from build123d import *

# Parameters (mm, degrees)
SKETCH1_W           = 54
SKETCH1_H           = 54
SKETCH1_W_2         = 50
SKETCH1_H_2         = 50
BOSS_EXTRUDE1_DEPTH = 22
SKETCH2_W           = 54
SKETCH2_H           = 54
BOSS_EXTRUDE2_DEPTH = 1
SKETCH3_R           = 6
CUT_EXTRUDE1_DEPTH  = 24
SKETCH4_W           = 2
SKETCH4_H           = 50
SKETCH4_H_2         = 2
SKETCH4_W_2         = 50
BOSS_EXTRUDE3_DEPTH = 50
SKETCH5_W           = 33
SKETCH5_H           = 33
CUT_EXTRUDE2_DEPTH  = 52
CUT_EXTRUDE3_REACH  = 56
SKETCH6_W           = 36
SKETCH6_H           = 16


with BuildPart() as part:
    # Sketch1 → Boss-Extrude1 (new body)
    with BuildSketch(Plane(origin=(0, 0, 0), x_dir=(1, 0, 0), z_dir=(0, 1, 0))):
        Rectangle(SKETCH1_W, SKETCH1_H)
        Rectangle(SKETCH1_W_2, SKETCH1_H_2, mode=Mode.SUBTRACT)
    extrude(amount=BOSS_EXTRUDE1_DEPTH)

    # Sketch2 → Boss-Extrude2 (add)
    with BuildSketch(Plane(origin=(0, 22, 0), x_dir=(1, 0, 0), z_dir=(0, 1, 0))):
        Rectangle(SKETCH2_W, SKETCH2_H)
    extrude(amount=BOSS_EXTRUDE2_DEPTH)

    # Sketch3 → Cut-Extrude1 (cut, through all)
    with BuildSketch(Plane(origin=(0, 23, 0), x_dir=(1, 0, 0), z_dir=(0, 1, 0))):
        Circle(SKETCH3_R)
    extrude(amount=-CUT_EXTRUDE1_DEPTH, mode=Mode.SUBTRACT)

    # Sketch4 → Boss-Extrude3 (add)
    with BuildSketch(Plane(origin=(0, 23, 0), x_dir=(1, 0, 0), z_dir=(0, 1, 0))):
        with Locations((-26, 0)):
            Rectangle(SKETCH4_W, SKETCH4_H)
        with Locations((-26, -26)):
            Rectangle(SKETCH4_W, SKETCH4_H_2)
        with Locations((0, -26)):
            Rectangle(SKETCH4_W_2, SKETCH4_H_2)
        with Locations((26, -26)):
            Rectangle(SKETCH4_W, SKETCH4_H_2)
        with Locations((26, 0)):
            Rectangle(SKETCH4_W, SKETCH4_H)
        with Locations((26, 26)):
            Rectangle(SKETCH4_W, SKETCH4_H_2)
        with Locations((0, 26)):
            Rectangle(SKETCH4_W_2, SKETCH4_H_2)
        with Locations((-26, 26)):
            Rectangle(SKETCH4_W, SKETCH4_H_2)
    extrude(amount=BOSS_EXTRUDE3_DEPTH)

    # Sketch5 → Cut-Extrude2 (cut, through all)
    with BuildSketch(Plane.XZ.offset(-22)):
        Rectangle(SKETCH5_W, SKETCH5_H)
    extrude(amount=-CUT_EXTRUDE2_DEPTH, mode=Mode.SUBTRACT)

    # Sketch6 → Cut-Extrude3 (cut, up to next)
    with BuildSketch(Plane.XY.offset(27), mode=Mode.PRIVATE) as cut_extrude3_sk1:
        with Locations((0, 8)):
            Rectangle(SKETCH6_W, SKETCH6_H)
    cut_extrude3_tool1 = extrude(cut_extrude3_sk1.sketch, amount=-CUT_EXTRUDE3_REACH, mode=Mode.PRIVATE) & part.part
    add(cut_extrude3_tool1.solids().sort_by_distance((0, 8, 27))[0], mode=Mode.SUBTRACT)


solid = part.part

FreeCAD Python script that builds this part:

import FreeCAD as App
import Part
import Sketcher

V = App.Vector
Q = App.Units.Quantity

doc = App.newDocument("Part")
body = doc.addObject("PartDesign::Body", "Body")

# Sketch on XZ plane
sketch1 = body.newObject("Sketcher::SketchObject", "Sketch")
sketch1.AttachmentSupport = (doc.getObject("XZ_Plane"), [""])
sketch1.MapMode = "FlatFace"
sketch1.addGeometry([
    Part.LineSegment(V(-27, -27, 0), V(-27, 27, 0)),  # 0
    Part.LineSegment(V(-27, 27, 0), V(27, 27, 0)),  # 1
    Part.LineSegment(V(27, 27, 0), V(27, -27, 0)),  # 2
    Part.LineSegment(V(27, -27, 0), V(-27, -27, 0)),  # 3
    Part.LineSegment(V(25, 25, 0), V(-25, 25, 0)),  # 4
    Part.LineSegment(V(-25, 25, 0), V(-25, -25, 0)),  # 5
    Part.LineSegment(V(-25, -25, 0), V(25, -25, 0)),  # 6
    Part.LineSegment(V(25, -25, 0), V(25, 25, 0)),  # 7
], False)
sketch1.addConstraint([
    Sketcher.Constraint("Coincident", 0, 2, 1, 1),
    Sketcher.Constraint("Coincident", 1, 2, 2, 1),
    Sketcher.Constraint("Coincident", 2, 2, 3, 1),
    Sketcher.Constraint("Coincident", 3, 2, 0, 1),
    Sketcher.Constraint("Coincident", 4, 2, 5, 1),
    Sketcher.Constraint("Coincident", 5, 2, 6, 1),
    Sketcher.Constraint("Coincident", 6, 2, 7, 1),
    Sketcher.Constraint("Coincident", 7, 2, 4, 1),
    Sketcher.Constraint("Vertical", 0),
    Sketcher.Constraint("Horizontal", 1),
    Sketcher.Constraint("Vertical", 2),
    Sketcher.Constraint("Horizontal", 3),
    Sketcher.Constraint("Horizontal", 4),
    Sketcher.Constraint("Vertical", 5),
    Sketcher.Constraint("Horizontal", 6),
    Sketcher.Constraint("Vertical", 7),
    Sketcher.Constraint("Symmetric", 0, 2, 2, 2, -1, 1),
    Sketcher.Constraint("Symmetric", 4, 2, 6, 2, -1, 1),
    Sketcher.Constraint("Equal", 3, 0),
    Sketcher.Constraint("Equal", 6, 5),
    Sketcher.Constraint("DistanceX", 1, 1, 1, 2, Q("54 mm")),
    Sketcher.Constraint("DistanceX", 4, 2, 4, 1, Q("50 mm")),
])
pad1 = body.newObject("PartDesign::Pad", "Pad")
pad1.Profile = sketch1
pad1.Length = 22
pad1.Reversed = True

# Sketch on XZ plane
sketch2 = body.newObject("Sketcher::SketchObject", "Sketch001")
sketch2.AttachmentSupport = (doc.getObject("XZ_Plane"), [""])
sketch2.MapMode = "FlatFace"
sketch2.AttachmentOffset = App.Placement(V(0, 0, -22), App.Rotation())
sketch2.addGeometry([
    Part.LineSegment(V(-27, -27, 0), V(-27, 27, 0)),
    Part.LineSegment(V(-27, 27, 0), V(27, 27, 0)),
    Part.LineSegment(V(27, 27, 0), V(27, -27, 0)),
    Part.LineSegment(V(27, -27, 0), V(-27, -27, 0)),
], False)
sketch2.addConstraint([
    Sketcher.Constraint("Coincident", 0, 2, 1, 1),
    Sketcher.Constraint("Coincident", 1, 2, 2, 1),
    Sketcher.Constraint("Coincident", 2, 2, 3, 1),
    Sketcher.Constraint("Coincident", 3, 2, 0, 1),
    Sketcher.Constraint("Vertical", 0),
    Sketcher.Constraint("Horizontal", 1),
    Sketcher.Constraint("Vertical", 2),
    Sketcher.Constraint("Horizontal", 3),
    Sketcher.Constraint("Symmetric", 0, 2, 2, 2, -1, 1),
    Sketcher.Constraint("Equal", 3, 0),
    Sketcher.Constraint("DistanceX", 1, 1, 1, 2, Q("54 mm")),
])
pad2 = body.newObject("PartDesign::Pad", "Pad001")
pad2.Profile = sketch2
pad2.Length = 1
pad2.Reversed = True

# Sketch on XZ plane
sketch3 = body.newObject("Sketcher::SketchObject", "Sketch002")
sketch3.AttachmentSupport = (doc.getObject("XZ_Plane"), [""])
sketch3.MapMode = "FlatFace"
sketch3.AttachmentOffset = App.Placement(V(0, 0, -23), App.Rotation())
sketch3.addGeometry(Part.Circle(V(0, 0, 0), V(0, 0, 1), 6), False)
sketch3.addConstraint([
    Sketcher.Constraint("Coincident", 0, 3, -1, 1),
    Sketcher.Constraint("Diameter", 0, Q("12 mm")),
])
pocket1 = body.newObject("PartDesign::Pocket", "Pocket")
pocket1.Profile = sketch3
pocket1.Type = "ThroughAll"
pocket1.Reversed = True

# Sketch on XZ plane
sketch4 = body.newObject("Sketcher::SketchObject", "Sketch003")
sketch4.AttachmentSupport = (doc.getObject("XZ_Plane"), [""])
sketch4.MapMode = "FlatFace"
sketch4.AttachmentOffset = App.Placement(V(0, 0, -23), App.Rotation())
sketch4.addGeometry([
    Part.LineSegment(V(27, -27, 0), V(-27, -27, 0)),  # 0
    Part.LineSegment(V(-27, -27, 0), V(-27, 27, 0)),  # 1
    Part.LineSegment(V(-27, 27, 0), V(27, 27, 0)),  # 2
    Part.LineSegment(V(27, 27, 0), V(27, -27, 0)),  # 3
    Part.LineSegment(V(-25, 25, 0), V(-25, -25, 0)),  # 4
    Part.LineSegment(V(-25, -25, 0), V(25, -25, 0)),  # 5
    Part.LineSegment(V(25, -25, 0), V(25, 25, 0)),  # 6
    Part.LineSegment(V(25, 25, 0), V(-25, 25, 0)),  # 7
], False)
sketch4.addConstraint([
    Sketcher.Constraint("Coincident", 0, 2, 1, 1),
    Sketcher.Constraint("Coincident", 1, 2, 2, 1),
    Sketcher.Constraint("Coincident", 2, 2, 3, 1),
    Sketcher.Constraint("Coincident", 3, 2, 0, 1),
    Sketcher.Constraint("Coincident", 4, 2, 5, 1),
    Sketcher.Constraint("Coincident", 5, 2, 6, 1),
    Sketcher.Constraint("Coincident", 6, 2, 7, 1),
    Sketcher.Constraint("Coincident", 7, 2, 4, 1),
    Sketcher.Constraint("Horizontal", 0),
    Sketcher.Constraint("Vertical", 1),
    Sketcher.Constraint("Horizontal", 2),
    Sketcher.Constraint("Vertical", 3),
    Sketcher.Constraint("Vertical", 4),
    Sketcher.Constraint("Horizontal", 5),
    Sketcher.Constraint("Vertical", 6),
    Sketcher.Constraint("Horizontal", 7),
    Sketcher.Constraint("Symmetric", 0, 2, 2, 2, -1, 1),
    Sketcher.Constraint("Symmetric", 4, 2, 6, 2, -1, 1),
    Sketcher.Constraint("Equal", 2, 1),
    Sketcher.Constraint("Equal", 7, 4),
    Sketcher.Constraint("DistanceX", 0, 2, 0, 1, Q("54 mm")),
    Sketcher.Constraint("DistanceX", 5, 1, 5, 2, Q("50 mm")),
])
pad3 = body.newObject("PartDesign::Pad", "Pad002")
pad3.Profile = sketch4
pad3.Length = 50
pad3.Reversed = True

# Sketch on XZ plane
sketch5 = body.newObject("Sketcher::SketchObject", "Sketch004")
sketch5.AttachmentSupport = (doc.getObject("XZ_Plane"), [""])
sketch5.MapMode = "FlatFace"
sketch5.AttachmentOffset = App.Placement(V(0, 0, -22), App.Rotation())
sketch5.addGeometry([
    Part.LineSegment(V(-16, 16, 0), V(-16, -16, 0)),
    Part.LineSegment(V(-16, -16, 0), V(16, -16, 0)),
    Part.LineSegment(V(16, -16, 0), V(16, 16, 0)),
    Part.LineSegment(V(16, 16, 0), V(-16, 16, 0)),
], False)
sketch5.addConstraint([
    Sketcher.Constraint("Coincident", 0, 2, 1, 1),
    Sketcher.Constraint("Coincident", 1, 2, 2, 1),
    Sketcher.Constraint("Coincident", 2, 2, 3, 1),
    Sketcher.Constraint("Coincident", 3, 2, 0, 1),
    Sketcher.Constraint("Vertical", 0),
    Sketcher.Constraint("Horizontal", 1),
    Sketcher.Constraint("Vertical", 2),
    Sketcher.Constraint("Horizontal", 3),
    Sketcher.Constraint("Symmetric", 0, 2, 2, 2, -1, 1),
    Sketcher.Constraint("Equal", 3, 0),
    Sketcher.Constraint("DistanceX", 1, 1, 1, 2, Q("33 mm")),
])
pocket2 = body.newObject("PartDesign::Pocket", "Pocket001")
pocket2.Profile = sketch5
pocket2.Type = "ThroughAll"

# Sketch on XY plane
sketch6 = body.newObject("Sketcher::SketchObject", "Sketch005")
sketch6.AttachmentSupport = (doc.getObject("XY_Plane"), [""])
sketch6.MapMode = "FlatFace"
sketch6.AttachmentOffset = App.Placement(V(0, 0, 27), App.Rotation())
sketch6.addGeometry([
    Part.LineSegment(V(-18, 16, 0), V(-18, 0, 0)),
    Part.LineSegment(V(-18, 0, 0), V(18, 0, 0)),
    Part.LineSegment(V(18, 0, 0), V(18, 16, 0)),
    Part.LineSegment(V(18, 16, 0), V(-18, 16, 0)),
], False)
sketch6.addConstraint([
    Sketcher.Constraint("Coincident", 0, 2, 1, 1),
    Sketcher.Constraint("Coincident", 1, 2, 2, 1),
    Sketcher.Constraint("Coincident", 2, 2, 3, 1),
    Sketcher.Constraint("Coincident", 3, 2, 0, 1),
    Sketcher.Constraint("Vertical", 0),
    Sketcher.Constraint("Horizontal", 1),
    Sketcher.Constraint("Vertical", 2),
    Sketcher.Constraint("Horizontal", 3),
    Sketcher.Constraint("Symmetric", 0, 2, 1, 2, -1, 1),
    Sketcher.Constraint("DistanceX", 1, 1, 1, 2, Q("36 mm")),
    Sketcher.Constraint("DistanceY", 0, 2, 0, 1, Q("16 mm")),
])
pocket3 = body.newObject("PartDesign::Pocket", "Pocket002")
pocket3.Profile = sketch6
pocket3.Type = "UpToFirst"

doc.recompute()
